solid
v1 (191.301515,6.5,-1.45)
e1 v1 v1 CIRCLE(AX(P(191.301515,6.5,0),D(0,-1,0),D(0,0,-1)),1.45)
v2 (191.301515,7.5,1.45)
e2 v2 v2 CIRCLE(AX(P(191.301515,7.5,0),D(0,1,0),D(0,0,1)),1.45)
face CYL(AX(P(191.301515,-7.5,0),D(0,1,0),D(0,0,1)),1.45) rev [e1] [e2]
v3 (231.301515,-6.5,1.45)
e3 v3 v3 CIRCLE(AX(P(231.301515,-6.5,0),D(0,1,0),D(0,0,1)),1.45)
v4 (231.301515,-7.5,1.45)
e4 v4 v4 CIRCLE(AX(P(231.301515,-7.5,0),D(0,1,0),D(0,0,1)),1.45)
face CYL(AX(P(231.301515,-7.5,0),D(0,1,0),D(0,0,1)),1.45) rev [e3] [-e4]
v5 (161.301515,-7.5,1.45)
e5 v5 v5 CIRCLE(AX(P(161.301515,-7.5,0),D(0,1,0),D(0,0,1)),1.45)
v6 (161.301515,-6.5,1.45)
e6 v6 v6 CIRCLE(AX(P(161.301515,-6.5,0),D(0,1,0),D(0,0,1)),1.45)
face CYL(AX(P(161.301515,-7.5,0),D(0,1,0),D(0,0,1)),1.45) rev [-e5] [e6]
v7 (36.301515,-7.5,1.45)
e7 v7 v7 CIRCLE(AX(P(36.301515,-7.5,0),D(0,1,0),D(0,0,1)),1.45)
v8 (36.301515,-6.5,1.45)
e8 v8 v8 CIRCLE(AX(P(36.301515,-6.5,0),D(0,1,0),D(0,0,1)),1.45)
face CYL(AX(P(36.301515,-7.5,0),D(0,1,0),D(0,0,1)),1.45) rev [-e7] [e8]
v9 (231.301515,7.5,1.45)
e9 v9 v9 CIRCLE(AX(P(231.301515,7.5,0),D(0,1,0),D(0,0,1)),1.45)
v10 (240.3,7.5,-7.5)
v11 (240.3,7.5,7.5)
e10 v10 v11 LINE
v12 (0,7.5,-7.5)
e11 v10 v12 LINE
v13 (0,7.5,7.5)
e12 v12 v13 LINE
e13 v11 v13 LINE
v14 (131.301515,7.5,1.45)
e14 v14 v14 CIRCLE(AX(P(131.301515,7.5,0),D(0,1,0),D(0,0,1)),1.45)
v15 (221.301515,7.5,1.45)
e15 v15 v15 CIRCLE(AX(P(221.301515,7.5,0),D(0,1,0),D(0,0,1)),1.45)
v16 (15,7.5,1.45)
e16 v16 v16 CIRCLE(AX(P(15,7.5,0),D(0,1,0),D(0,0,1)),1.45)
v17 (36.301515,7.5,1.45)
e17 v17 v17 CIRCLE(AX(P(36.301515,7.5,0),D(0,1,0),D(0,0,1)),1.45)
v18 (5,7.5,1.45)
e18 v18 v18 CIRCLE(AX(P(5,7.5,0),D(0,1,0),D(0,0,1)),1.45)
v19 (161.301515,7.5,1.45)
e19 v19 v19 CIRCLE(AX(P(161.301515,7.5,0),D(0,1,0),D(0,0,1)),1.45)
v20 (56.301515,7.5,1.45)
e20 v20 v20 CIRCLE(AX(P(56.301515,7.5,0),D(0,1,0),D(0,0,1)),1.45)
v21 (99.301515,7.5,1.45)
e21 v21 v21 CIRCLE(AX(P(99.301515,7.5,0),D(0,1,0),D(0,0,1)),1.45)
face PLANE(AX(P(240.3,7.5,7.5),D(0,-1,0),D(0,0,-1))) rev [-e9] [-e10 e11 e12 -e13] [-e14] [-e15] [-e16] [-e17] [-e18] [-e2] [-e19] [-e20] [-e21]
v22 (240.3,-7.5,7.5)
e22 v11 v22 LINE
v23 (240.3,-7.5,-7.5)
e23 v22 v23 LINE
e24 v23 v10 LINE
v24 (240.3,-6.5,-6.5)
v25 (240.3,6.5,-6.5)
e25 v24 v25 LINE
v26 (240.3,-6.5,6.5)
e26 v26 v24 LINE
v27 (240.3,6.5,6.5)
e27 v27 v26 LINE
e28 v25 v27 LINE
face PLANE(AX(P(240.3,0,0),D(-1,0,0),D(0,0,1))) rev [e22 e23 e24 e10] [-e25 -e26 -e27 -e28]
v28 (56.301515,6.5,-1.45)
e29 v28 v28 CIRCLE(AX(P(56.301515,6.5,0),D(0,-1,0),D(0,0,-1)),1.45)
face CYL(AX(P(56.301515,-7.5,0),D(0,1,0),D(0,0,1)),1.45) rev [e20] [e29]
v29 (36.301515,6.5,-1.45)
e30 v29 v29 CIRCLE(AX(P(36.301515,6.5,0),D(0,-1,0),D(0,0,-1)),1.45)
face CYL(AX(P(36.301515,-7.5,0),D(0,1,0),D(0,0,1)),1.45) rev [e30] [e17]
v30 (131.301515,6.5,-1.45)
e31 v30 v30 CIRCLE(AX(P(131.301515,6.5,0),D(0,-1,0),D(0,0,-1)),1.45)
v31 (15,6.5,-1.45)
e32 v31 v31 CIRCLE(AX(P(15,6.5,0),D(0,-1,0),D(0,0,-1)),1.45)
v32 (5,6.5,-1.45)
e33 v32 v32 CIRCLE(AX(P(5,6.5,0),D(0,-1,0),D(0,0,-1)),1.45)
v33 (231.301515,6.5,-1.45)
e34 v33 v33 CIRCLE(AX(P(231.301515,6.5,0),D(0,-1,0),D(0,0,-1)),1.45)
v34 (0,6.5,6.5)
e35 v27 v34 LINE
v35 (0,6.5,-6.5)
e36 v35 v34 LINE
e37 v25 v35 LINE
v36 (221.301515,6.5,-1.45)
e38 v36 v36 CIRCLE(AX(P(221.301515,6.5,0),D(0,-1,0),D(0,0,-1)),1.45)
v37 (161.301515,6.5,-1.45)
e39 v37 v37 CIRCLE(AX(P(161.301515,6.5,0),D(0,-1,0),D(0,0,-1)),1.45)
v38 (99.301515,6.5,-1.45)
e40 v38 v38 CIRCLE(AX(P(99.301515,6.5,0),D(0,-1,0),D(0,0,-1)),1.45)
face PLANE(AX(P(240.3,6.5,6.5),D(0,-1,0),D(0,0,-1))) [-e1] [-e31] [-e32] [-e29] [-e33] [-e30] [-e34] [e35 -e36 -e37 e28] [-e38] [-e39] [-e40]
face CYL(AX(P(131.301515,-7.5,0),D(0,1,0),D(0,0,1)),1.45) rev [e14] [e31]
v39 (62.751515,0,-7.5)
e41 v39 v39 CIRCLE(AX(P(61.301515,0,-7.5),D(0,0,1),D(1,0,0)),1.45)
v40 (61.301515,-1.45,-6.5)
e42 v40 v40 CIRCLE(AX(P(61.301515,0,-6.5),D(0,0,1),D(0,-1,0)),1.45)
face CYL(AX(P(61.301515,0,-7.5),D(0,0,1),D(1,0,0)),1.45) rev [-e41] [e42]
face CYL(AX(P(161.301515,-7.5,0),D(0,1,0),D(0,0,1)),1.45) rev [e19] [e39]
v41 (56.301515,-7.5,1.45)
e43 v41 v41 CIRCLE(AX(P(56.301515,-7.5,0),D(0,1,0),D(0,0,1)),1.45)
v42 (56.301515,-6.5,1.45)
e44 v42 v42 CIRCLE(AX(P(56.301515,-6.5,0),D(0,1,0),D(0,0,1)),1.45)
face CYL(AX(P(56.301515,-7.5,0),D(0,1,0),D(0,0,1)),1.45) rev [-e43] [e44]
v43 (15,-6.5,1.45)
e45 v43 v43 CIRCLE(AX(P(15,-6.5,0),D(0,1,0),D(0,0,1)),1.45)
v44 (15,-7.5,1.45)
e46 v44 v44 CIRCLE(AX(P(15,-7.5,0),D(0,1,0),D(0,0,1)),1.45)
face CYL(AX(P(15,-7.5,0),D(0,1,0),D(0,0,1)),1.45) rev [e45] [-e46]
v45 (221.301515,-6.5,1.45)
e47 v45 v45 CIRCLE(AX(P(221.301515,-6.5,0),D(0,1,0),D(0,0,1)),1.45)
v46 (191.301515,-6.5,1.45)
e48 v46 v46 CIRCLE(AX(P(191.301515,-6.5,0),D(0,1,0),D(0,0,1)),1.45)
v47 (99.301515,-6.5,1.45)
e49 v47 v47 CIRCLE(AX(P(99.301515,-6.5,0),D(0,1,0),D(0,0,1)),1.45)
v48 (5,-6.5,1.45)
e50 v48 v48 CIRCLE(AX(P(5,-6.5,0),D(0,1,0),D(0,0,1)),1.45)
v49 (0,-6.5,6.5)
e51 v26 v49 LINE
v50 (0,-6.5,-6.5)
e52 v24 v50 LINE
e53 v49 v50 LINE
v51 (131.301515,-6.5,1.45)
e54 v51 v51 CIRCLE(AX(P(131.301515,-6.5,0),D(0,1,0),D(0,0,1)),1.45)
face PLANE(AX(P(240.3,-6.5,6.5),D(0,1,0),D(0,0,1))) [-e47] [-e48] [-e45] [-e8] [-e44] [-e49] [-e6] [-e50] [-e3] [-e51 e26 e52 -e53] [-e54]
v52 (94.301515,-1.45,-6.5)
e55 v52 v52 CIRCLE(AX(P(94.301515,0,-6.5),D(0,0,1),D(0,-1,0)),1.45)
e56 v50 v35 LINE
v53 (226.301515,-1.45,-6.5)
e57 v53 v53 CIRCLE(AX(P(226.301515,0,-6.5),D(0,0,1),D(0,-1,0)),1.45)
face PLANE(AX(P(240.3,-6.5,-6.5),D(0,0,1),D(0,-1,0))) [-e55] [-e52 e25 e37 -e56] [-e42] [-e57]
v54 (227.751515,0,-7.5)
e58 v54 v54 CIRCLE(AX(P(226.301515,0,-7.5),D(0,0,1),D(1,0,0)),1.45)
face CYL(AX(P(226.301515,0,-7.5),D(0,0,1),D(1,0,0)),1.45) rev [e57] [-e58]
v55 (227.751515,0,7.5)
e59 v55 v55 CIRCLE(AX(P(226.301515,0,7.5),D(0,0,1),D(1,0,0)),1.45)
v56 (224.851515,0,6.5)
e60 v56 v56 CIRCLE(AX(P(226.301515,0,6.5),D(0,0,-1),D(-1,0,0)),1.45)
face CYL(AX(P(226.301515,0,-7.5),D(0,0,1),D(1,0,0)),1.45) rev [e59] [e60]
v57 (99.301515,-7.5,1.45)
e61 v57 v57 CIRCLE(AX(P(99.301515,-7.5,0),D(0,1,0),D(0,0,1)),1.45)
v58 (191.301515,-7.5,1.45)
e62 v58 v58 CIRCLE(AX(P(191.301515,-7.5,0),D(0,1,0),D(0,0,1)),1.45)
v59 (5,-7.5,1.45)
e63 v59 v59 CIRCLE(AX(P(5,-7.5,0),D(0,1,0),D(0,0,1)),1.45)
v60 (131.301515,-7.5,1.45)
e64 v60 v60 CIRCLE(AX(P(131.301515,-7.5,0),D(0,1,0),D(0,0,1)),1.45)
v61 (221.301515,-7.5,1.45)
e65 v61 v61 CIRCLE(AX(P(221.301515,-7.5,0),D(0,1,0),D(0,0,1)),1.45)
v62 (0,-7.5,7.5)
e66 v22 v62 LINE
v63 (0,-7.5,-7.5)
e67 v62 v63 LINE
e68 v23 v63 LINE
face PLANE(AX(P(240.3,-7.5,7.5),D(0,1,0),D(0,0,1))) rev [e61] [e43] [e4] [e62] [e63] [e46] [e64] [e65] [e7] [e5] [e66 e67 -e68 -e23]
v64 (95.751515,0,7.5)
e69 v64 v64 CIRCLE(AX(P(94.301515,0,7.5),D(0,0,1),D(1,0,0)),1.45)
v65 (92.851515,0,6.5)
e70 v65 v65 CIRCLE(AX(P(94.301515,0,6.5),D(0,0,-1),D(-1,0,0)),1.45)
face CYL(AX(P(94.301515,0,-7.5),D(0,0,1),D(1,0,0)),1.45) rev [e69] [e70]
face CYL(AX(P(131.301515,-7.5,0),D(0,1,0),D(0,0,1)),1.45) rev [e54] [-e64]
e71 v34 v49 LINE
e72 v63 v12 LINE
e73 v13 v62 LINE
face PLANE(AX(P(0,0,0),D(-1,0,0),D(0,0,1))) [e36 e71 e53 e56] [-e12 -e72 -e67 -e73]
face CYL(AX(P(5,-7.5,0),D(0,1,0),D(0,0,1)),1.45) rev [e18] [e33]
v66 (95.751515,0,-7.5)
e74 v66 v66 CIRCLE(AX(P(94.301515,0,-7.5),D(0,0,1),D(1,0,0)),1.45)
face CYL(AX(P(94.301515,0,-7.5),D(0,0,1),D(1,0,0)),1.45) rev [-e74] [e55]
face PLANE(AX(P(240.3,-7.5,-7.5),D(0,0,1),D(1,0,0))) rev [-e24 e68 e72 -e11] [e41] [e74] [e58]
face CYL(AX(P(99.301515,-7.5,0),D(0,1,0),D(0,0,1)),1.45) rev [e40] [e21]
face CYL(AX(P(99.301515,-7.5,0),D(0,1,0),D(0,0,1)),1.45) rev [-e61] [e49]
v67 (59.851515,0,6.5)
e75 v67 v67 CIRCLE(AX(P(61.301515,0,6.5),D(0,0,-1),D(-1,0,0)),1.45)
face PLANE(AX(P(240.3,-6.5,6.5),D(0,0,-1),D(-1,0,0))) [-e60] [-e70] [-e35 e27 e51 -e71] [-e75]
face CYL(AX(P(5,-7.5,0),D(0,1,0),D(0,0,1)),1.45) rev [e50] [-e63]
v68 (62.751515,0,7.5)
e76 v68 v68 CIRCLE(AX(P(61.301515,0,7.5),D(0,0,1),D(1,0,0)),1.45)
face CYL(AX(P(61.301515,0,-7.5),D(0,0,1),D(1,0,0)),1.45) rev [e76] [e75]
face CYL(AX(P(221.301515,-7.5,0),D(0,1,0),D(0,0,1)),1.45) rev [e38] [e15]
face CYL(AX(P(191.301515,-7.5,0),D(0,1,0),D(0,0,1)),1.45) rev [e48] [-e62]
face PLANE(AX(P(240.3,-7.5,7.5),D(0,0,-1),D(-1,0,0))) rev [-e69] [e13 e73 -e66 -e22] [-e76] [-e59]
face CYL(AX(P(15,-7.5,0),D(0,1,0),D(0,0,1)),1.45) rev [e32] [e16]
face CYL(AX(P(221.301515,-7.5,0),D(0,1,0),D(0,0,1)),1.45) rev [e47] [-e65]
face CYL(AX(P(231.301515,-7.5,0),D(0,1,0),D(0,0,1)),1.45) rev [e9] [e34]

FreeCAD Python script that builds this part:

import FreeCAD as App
import Part
import Sketcher
from FreeCAD import Vector
Q = App.Units.Quantity


def add_polygon(sketch, points):
    """Adds a closed chain of lines whose ends are joined by coincident constraints."""
    first, n = sketch.GeometryCount, len(points)
    for a, b in zip(points, points[1:] + points[:1]):
        sketch.addGeometry(Part.LineSegment(App.Vector(*a, 0), App.Vector(*b, 0)), False)
    for i in range(n):
        sketch.addConstraint(Sketcher.Constraint("Coincident", first + i, 2, first + (i + 1) % n, 1))

doc = App.newDocument("Part")
body = doc.addObject("PartDesign::Body", "Body")

# Sketch on YZ plane
sketch1 = body.newObject("Sketcher::SketchObject", "Sketch")
sketch1.AttachmentSupport = (doc.getObject("YZ_Plane"), [""])
sketch1.MapMode = "FlatFace"
add_polygon(sketch1, [(7.5, 7.5), (-7.5, 7.5), (-7.5, -7.5), (7.5, -7.5)])  # lines 0-3
add_polygon(sketch1, [(-6.5, -6.5), (-6.5, 6.5), (6.5, 6.5), (6.5, -6.5)])  # lines 4-7
sketch1.addConstraint([
    Sketcher.Constraint("Horizontal", 0),
    Sketcher.Constraint("Vertical", 1),
    Sketcher.Constraint("Horizontal", 2),
    Sketcher.Constraint("Vertical", 3),
    Sketcher.Constraint("Vertical", 4),
    Sketcher.Constraint("Horizontal", 5),
    Sketcher.Constraint("Vertical", 6),
    Sketcher.Constraint("Horizontal", 7),
    Sketcher.Constraint("Symmetric", 0, 2, 2, 2, -1, 1),
    Sketcher.Constraint("Symmetric", 4, 2, 6, 2, -1, 1),
    Sketcher.Constraint("Equal", 2, 1),
    Sketcher.Constraint("Equal", 7, 4),
    Sketcher.Constraint("DistanceX", 0, 2, 0, 1, Q("15 mm")),
    Sketcher.Constraint("DistanceX", 5, 1, 5, 2, Q("13 mm")),
])
pad1 = body.newObject("PartDesign::Pad", "Pad")
pad1.Profile = sketch1
pad1.Length = 240.3

# Sketch on XZ plane
sketch2 = body.newObject("Sketcher::SketchObject", "Sketch001")
sketch2.AttachmentSupport = (doc.getObject("XZ_Plane"), [""])
sketch2.MapMode = "FlatFace"
sketch2.AttachmentOffset = App.Placement(Vector(0, 0, -7.5), App.Rotation())
sketch2.addGeometry([
    Part.Circle(Vector(5, 0, 0), Vector(0, 0, 1), 1.45),  # 0
    Part.Circle(Vector(15, 0, 0), Vector(0, 0, 1), 1.45),  # 1
    Part.Circle(Vector(36.301515, 0, 0), Vector(0, 0, 1), 1.45),  # 2
    Part.Circle(Vector(56.301515, 0, 0), Vector(0, 0, 1), 1.45),  # 3
    Part.Circle(Vector(99.301515, 0, 0), Vector(0, 0, 1), 1.45),  # 4
    Part.Circle(Vector(221.301515, 0, 0), Vector(0, 0, 1), 1.45),  # 5
    Part.Circle(Vector(231.301515, 0, 0), Vector(0, 0, 1), 1.45),  # 6
    Part.Circle(Vector(131.301515, 0, 0), Vector(0, 0, 1), 1.45),  # 7
    Part.Circle(Vector(161.301515, 0, 0), Vector(0, 0, 1), 1.45),  # 8
    Part.Circle(Vector(191.301515, 0, 0), Vector(0, 0, 1), 1.45),  # 9
], False)
sketch2.addConstraint([
    Sketcher.Constraint("Equal", 0, 1),
    Sketcher.Constraint("Equal", 1, 2),
    Sketcher.Constraint("Equal", 2, 3),
    Sketcher.Constraint("Equal", 3, 4),
    Sketcher.Constraint("Equal", 4, 5),
    Sketcher.Constraint("Equal", 5, 6),
    Sketcher.Constraint("Equal", 6, 7),
    Sketcher.Constraint("Equal", 7, 8),
    Sketcher.Constraint("Equal", 8, 9),
    Sketcher.Constraint("PointOnObject", 0, 3, -1),
    Sketcher.Constraint("PointOnObject", 1, 3, -1),
    Sketcher.Constraint("PointOnObject", 2, 3, -1),
    Sketcher.Constraint("PointOnObject", 3, 3, -1),
    Sketcher.Constraint("PointOnObject", 4, 3, -1),
    Sketcher.Constraint("PointOnObject", 5, 3, -1),
    Sketcher.Constraint("PointOnObject", 6, 3, -1),
    Sketcher.Constraint("PointOnObject", 7, 3, -1),
    Sketcher.Constraint("PointOnObject", 8, 3, -1),
    Sketcher.Constraint("PointOnObject", 9, 3, -1),
    Sketcher.Constraint("Diameter", 0, Q("2.9 mm")),
    Sketcher.Constraint("DistanceX", -1, 1, 0, 3, Q("5 mm")),
    Sketcher.Constraint("DistanceX", -1, 1, 1, 3, Q("15 mm")),
    Sketcher.Constraint("DistanceX", 2, 3, 3, 3, Q("20 mm")),
    Sketcher.Constraint("DistanceX", 3, 3, 4, 3, Q("43 mm")),
    Sketcher.Constraint("DistanceX", 4, 3, 5, 3, Q("122 mm")),
    Sketcher.Constraint("DistanceX", 5, 3, 6, 3, Q("10 mm")),
    Sketcher.Constraint("DistanceX", 4, 3, 7, 3, Q("32 mm")),
    Sketcher.Constraint("DistanceX", 7, 3, 8, 3, Q("30 mm")),
    Sketcher.Constraint("DistanceX", 9, 3, 5, 3, Q("30 mm")),
    Sketcher.Constraint("DistanceX", -1, 1, 2, 3, Q("36.301515 mm")),
])
pocket1 = body.newObject("PartDesign::Pocket", "Pocket")
pocket1.Profile = sketch2
pocket1.Type = "ThroughAll"
pocket1.Reversed = True

# Sketch on XY plane
sketch3 = body.newObject("Sketcher::SketchObject", "Sketch002")
sketch3.AttachmentSupport = (doc.getObject("XY_Plane"), [""])
sketch3.MapMode = "FlatFace"
sketch3.AttachmentOffset = App.Placement(Vector(0, 0, 7.5), App.Rotation())
sketch3.addGeometry([
    Part.Circle(Vector(61.301515, 0, 0), Vector(0, 0, 1), 1.45),
    Part.Circle(Vector(226.301515, 0, 0), Vector(0, 0, 1), 1.45),
    Part.Circle(Vector(94.301515, 0, 0), Vector(0, 0, 1), 1.45),
], False)
sketch3.addConstraint([
    Sketcher.Constraint("Equal", 0, 1),
    Sketcher.Constraint("Equal", 1, 2),
    Sketcher.Constraint("PointOnObject", 0, 3, -1),
    Sketcher.Constraint("PointOnObject", 1, 3, -1),
    Sketcher.Constraint("PointOnObject", 2, 3, -1),
    Sketcher.Constraint("Diameter", 0, Q("2.9 mm")),
    Sketcher.Constraint("DistanceX", 0, 3, 1, 3, Q("165 mm")),
    Sketcher.Constraint("DistanceX", 0, 3, 2, 3, Q("33 mm")),
    Sketcher.Constraint("DistanceX", -1, 1, 0, 3, Q("61.301515 mm")),
])
pocket2 = body.newObject("PartDesign::Pocket", "Pocket001")
pocket2.Profile = sketch3
pocket2.Type = "ThroughAll"

doc.recompute()
